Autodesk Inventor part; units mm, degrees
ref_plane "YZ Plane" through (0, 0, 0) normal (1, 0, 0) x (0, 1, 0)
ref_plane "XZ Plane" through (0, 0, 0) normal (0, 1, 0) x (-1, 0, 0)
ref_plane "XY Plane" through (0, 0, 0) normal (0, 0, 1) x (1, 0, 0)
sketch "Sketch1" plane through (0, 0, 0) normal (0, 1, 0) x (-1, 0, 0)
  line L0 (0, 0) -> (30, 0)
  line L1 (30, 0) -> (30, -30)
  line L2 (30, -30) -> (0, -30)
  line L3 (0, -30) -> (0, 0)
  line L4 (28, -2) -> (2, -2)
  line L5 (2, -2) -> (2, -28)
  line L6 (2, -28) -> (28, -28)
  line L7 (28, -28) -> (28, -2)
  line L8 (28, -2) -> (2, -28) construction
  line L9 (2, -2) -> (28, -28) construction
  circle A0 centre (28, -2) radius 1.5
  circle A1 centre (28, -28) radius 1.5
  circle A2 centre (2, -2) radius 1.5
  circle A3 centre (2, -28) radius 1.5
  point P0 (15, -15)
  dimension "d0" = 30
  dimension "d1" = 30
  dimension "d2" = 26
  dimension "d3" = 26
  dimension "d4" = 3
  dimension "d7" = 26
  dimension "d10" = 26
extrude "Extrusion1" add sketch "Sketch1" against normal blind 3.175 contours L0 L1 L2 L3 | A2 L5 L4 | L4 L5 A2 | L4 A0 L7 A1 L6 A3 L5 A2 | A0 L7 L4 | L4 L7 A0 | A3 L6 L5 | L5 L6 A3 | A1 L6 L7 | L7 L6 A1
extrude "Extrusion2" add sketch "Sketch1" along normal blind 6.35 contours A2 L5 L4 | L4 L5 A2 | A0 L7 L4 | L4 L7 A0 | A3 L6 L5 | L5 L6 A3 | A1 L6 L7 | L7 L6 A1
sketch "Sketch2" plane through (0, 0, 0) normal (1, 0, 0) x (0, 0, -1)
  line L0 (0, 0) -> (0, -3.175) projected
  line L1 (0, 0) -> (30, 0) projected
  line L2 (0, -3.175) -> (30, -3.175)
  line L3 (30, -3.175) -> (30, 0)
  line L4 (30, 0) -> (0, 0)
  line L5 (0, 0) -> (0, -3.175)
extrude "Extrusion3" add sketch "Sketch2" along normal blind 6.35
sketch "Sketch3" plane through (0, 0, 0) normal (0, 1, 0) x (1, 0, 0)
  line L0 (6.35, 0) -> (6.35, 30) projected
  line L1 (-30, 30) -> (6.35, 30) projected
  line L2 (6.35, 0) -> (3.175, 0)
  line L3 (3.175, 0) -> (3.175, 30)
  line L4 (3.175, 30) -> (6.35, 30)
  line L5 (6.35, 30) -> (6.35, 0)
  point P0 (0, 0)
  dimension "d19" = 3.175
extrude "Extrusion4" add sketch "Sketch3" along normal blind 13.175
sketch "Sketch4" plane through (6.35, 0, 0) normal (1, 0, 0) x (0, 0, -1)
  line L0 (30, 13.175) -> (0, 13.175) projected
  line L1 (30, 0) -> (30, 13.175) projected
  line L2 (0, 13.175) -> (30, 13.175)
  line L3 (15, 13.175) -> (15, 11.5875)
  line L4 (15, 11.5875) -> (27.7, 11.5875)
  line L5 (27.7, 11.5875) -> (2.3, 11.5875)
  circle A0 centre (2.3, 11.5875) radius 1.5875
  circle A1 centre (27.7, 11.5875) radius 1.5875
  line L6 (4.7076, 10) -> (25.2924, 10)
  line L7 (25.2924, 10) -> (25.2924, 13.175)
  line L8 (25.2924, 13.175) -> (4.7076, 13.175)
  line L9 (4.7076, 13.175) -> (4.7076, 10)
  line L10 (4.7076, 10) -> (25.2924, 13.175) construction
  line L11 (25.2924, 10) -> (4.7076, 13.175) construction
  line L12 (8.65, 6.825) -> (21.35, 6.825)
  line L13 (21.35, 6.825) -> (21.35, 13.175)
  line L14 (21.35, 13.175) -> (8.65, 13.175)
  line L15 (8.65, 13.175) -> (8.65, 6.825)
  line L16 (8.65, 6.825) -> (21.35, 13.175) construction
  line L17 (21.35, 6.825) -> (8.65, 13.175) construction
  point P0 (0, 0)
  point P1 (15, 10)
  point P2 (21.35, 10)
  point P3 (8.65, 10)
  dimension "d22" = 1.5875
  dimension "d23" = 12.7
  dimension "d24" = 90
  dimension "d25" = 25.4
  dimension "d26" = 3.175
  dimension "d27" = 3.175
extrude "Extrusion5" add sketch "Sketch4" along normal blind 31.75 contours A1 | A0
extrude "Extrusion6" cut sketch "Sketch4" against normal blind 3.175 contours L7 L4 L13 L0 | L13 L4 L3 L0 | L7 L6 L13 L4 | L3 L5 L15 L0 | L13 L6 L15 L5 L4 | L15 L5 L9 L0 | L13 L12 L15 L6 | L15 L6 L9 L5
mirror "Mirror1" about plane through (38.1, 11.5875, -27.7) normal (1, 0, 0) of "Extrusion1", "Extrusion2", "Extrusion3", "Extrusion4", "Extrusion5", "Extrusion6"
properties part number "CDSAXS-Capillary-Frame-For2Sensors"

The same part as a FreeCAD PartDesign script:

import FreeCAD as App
import Part
import Sketcher

V = App.Vector
Q = App.Units.Quantity


def add_polygon(sketch, points):
    """Adds a closed chain of lines whose ends are joined by coincident constraints."""
    first, n = sketch.GeometryCount, len(points)
    for a, b in zip(points, points[1:] + points[:1]):
        sketch.addGeometry(Part.LineSegment(App.Vector(*a, 0), App.Vector(*b, 0)), False)
    for i in range(n):
        sketch.addConstraint(Sketcher.Constraint("Coincident", first + i, 2, first + (i + 1) % n, 1))

doc = App.newDocument("Part")
body = doc.addObject("PartDesign::Body", "Body")

# Sketch on XZ plane
sketch1 = doc.addObject("Sketcher::SketchObject", "Sketch")
body.addObject(sketch1)
sketch1.AttachmentSupport = (doc.XZ_Plane, [""])
sketch1.MapMode = "FlatFace"
add_polygon(sketch1, [(-30, 0), (0, 0), (0, -30), (-30, -30)])  # lines 0-3
sketch1.addConstraint(Sketcher.Constraint("Horizontal", 0))
sketch1.addConstraint(Sketcher.Constraint("Vertical", 1))
sketch1.addConstraint(Sketcher.Constraint("Horizontal", 2))
sketch1.addConstraint(Sketcher.Constraint("Vertical", 3))
sketch1.addConstraint(Sketcher.Constraint("Coincident", 0, 2, -1, 1))
sketch1.addConstraint(Sketcher.Constraint("Equal", 2, 1))
sketch1.addConstraint(Sketcher.Constraint("DistanceX", 0, 1, 0, 2, Q("1.1811 in")))
pad1 = doc.addObject("PartDesign::Pad", "Pad")
body.addObject(pad1)
pad1.Profile = sketch1
pad1.Length = Q("0.125 in")

# Sketch on XZ plane
sketch2 = doc.addObject("Sketcher::SketchObject", "Sketch001")
body.addObject(sketch2)
sketch2.AttachmentSupport = (doc.XZ_Plane, [""])
sketch2.MapMode = "FlatFace"
sketch2.addGeometry(Part.Circle(V(-2, -2, 0), V(0, 0, 1), 1.5), False)
sketch2.addGeometry(Part.Circle(V(-28, -2, 0), V(0, 0, 1), 1.5), False)
sketch2.addGeometry(Part.Circle(V(-2, -28, 0), V(0, 0, 1), 1.5), False)
sketch2.addGeometry(Part.Circle(V(-28, -28, 0), V(0, 0, 1), 1.5), False)
sketch2.addConstraint(Sketcher.Constraint("Equal", 0, 1))
sketch2.addConstraint(Sketcher.Constraint("Equal", 1, 2))
sketch2.addConstraint(Sketcher.Constraint("Equal", 2, 3))
sketch2.addConstraint(Sketcher.Constraint("Horizontal", 0, 3, 1, 3))
sketch2.addConstraint(Sketcher.Constraint("Horizontal", 2, 3, 3, 3))
sketch2.addConstraint(Sketcher.Constraint("Vertical", 0, 3, 2, 3))
sketch2.addConstraint(Sketcher.Constraint("Vertical", 1, 3, 3, 3))
sketch2.addConstraint(Sketcher.Constraint("Diameter", 0, Q("0.1181 in")))
sketch2.addConstraint(Sketcher.Constraint("DistanceX", 1, 3, 0, 3, Q("26 mm")))
sketch2.addConstraint(Sketcher.Constraint("DistanceY", 2, 3, 0, 3, Q("26 mm")))
sketch2.addConstraint(Sketcher.Constraint("DistanceX", 0, 3, -1, 1, Q("2 mm")))
sketch2.addConstraint(Sketcher.Constraint("DistanceY", 0, 3, -1, 1, Q("2 mm")))
pad2 = doc.addObject("PartDesign::Pad", "Pad001")
body.addObject(pad2)
pad2.Profile = sketch2
pad2.Length = Q("0.25 in")
pad2.Reversed = True

# Sketch on YZ plane
sketch3 = doc.addObject("Sketcher::SketchObject", "Sketch002")
body.addObject(sketch3)
sketch3.AttachmentSupport = (doc.YZ_Plane, [""])
sketch3.MapMode = "FlatFace"
add_polygon(sketch3, [(0, -30), (0, 0), (-3.2, 0), (-3.2, -30)])  # lines 0-3
sketch3.addConstraint(Sketcher.Constraint("Vertical", 0))
sketch3.addConstraint(Sketcher.Constraint("Horizontal", 1))
sketch3.addConstraint(Sketcher.Constraint("Vertical", 2))
sketch3.addConstraint(Sketcher.Constraint("Horizontal", 3))
sketch3.addConstraint(Sketcher.Constraint("Coincident", 0, 2, -1, 1))
sketch3.addConstraint(Sketcher.Constraint("DistanceX", 1, 2, 1, 1, Q("0.125 in")))
sketch3.addConstraint(Sketcher.Constraint("DistanceY", 0, 1, 0, 2, Q("1.1811 in")))
pad3 = doc.addObject("PartDesign::Pad", "Pad002")
body.addObject(pad3)
pad3.Profile = sketch3
pad3.Length = Q("0.25 in")

# Sketch on XZ plane
sketch4 = doc.addObject("Sketcher::SketchObject", "Sketch003")
body.addObject(sketch4)
sketch4.AttachmentSupport = (doc.XZ_Plane, [""])
sketch4.MapMode = "FlatFace"
add_polygon(sketch4, [(3.2, 0), (6.3, 0), (6.3, -30), (3.2, -30)])  # lines 0-3
sketch4.addConstraint(Sketcher.Constraint("Horizontal", 0))
sketch4.addConstraint(Sketcher.Constraint("Vertical", 1))
sketch4.addConstraint(Sketcher.Constraint("Horizontal", 2))
sketch4.addConstraint(Sketcher.Constraint("Vertical", 3))
sketch4.addConstraint(Sketcher.Constraint("PointOnObject", 0, 2, -1))
sketch4.addConstraint(Sketcher.Constraint("DistanceX", 0, 1, 0, 2, Q("0.125 in")))
sketch4.addConstraint(Sketcher.Constraint("DistanceX", -1, 1, 2, 2, Q("0.125 in")))
sketch4.addConstraint(Sketcher.Constraint("DistanceY", 1, 2, 1, 1, Q("1.1811 in")))
pad4 = doc.addObject("PartDesign::Pad", "Pad003")
body.addObject(pad4)
pad4.Profile = sketch4
pad4.Length = Q("0.5187008 in")
pad4.Reversed = True

# Sketch on YZ plane
sketch5 = doc.addObject("Sketcher::SketchObject", "Sketch004")
body.addObject(sketch5)
sketch5.AttachmentSupport = (doc.YZ_Plane, [""])
sketch5.MapMode = "FlatFace"
sketch5.AttachmentOffset = App.Placement(V(0, 0, 0.25 * 25.4), App.Rotation())
sketch5.addGeometry(Part.Circle(V(11.6, -27.7, 0), V(0, 0, 1), 1.6), False)
sketch5.addGeometry(Part.Circle(V(11.6, -2.3, 0), V(0, 0, 1), 1.6), False)
sketch5.addConstraint(Sketcher.Constraint("Equal", 0, 1))
sketch5.addConstraint(Sketcher.Constraint("Vertical", 0, 3, 1, 3))
sketch5.addConstraint(Sketcher.Constraint("Diameter", 0, Q("0.125 in")))
sketch5.addConstraint(Sketcher.Constraint("DistanceY", 0, 3, 1, 3, Q("1 in")))
sketch5.addConstraint(Sketcher.Constraint("DistanceX", -1, 1, 0, 3, Q("0.4562 in")))
sketch5.addConstraint(Sketcher.Constraint("DistanceY", 0, 3, -1, 1, Q("27.7 mm")))
pad5 = doc.addObject("PartDesign::Pad", "Pad004")
body.addObject(pad5)
pad5.Profile = sketch5
pad5.Length = Q("1.25 in")

# Sketch on YZ plane
sketch6 = doc.addObject("Sketcher::SketchObject", "Sketch005")
body.addObject(sketch6)
sketch6.AttachmentSupport = (doc.YZ_Plane, [""])
sketch6.MapMode = "FlatFace"
sketch6.AttachmentOffset = App.Placement(V(0, 0, 0.25 * 25.4), App.Rotation())
add_polygon(sketch6, [(13.2, -25.3), (13.2, -4.7), (10, -4.7), (10, -8.7), (6.8, -8.7), (6.8, -21.4), (10, -21.4), (10, -25.3)])  # lines 0-7
sketch6.addConstraint(Sketcher.Constraint("Vertical", 0))
sketch6.addConstraint(Sketcher.Constraint("Horizontal", 1))
sketch6.addConstraint(Sketcher.Constraint("Vertical", 2))
sketch6.addConstraint(Sketcher.Constraint("Horizontal", 3))
sketch6.addConstraint(Sketcher.Constraint("Vertical", 4))
sketch6.addConstraint(Sketcher.Constraint("Horizontal", 5))
sketch6.addConstraint(Sketcher.Constraint("Vertical", 6))
sketch6.addConstraint(Sketcher.Constraint("Horizontal", 7))
sketch6.addConstraint(Sketcher.Constraint("Vertical", 2, 2, 5, 2))
sketch6.addConstraint(Sketcher.Constraint("Equal", 1, 3))
sketch6.addConstraint(Sketcher.Constraint("Equal", 2, 6))
sketch6.addConstraint(Sketcher.Constraint("DistanceY", 4, 2, 4, 1, Q("0.5 in")))
sketch6.addConstraint(Sketcher.Constraint("DistanceX", 1, 2, 1, 1, Q("0.125 in")))
sketch6.addConstraint(Sketcher.Constraint("DistanceY", 0, 1, 0, 2, Q("20.5848 mm")))
sketch6.addConstraint(Sketcher.Constraint("DistanceX", -1, 1, 0, 2, Q("0.5187 in")))
sketch6.addConstraint(Sketcher.Constraint("DistanceY", 0, 2, -1, 1, Q("4.7076 mm")))
pocket1 = doc.addObject("PartDesign::Pocket", "Pocket")
body.addObject(pocket1)
pocket1.Profile = sketch6
pocket1.Length = Q("0.125 in")
doc.recompute()

datumplane = doc.addObject("PartDesign::Plane", "DatumPlane")
body.addObject(datumplane)
datumplane.AttachmentSupport = (doc.YZ_Plane, [""])
datumplane.MapMode = "FlatFace"
datumplane.AttachmentOffset = App.Placement(V(0, 0, 1.5 * 25.4), App.Rotation())
mirrored = doc.addObject("PartDesign::Mirrored", "Mirrored")
body.addObject(mirrored)
mirrored.Originals = [pad1, pad2, pad3, pad4, pad5, pocket1]
mirrored.MirrorPlane = (datumplane, [""])
body.Tip = mirrored

doc.recompute()
